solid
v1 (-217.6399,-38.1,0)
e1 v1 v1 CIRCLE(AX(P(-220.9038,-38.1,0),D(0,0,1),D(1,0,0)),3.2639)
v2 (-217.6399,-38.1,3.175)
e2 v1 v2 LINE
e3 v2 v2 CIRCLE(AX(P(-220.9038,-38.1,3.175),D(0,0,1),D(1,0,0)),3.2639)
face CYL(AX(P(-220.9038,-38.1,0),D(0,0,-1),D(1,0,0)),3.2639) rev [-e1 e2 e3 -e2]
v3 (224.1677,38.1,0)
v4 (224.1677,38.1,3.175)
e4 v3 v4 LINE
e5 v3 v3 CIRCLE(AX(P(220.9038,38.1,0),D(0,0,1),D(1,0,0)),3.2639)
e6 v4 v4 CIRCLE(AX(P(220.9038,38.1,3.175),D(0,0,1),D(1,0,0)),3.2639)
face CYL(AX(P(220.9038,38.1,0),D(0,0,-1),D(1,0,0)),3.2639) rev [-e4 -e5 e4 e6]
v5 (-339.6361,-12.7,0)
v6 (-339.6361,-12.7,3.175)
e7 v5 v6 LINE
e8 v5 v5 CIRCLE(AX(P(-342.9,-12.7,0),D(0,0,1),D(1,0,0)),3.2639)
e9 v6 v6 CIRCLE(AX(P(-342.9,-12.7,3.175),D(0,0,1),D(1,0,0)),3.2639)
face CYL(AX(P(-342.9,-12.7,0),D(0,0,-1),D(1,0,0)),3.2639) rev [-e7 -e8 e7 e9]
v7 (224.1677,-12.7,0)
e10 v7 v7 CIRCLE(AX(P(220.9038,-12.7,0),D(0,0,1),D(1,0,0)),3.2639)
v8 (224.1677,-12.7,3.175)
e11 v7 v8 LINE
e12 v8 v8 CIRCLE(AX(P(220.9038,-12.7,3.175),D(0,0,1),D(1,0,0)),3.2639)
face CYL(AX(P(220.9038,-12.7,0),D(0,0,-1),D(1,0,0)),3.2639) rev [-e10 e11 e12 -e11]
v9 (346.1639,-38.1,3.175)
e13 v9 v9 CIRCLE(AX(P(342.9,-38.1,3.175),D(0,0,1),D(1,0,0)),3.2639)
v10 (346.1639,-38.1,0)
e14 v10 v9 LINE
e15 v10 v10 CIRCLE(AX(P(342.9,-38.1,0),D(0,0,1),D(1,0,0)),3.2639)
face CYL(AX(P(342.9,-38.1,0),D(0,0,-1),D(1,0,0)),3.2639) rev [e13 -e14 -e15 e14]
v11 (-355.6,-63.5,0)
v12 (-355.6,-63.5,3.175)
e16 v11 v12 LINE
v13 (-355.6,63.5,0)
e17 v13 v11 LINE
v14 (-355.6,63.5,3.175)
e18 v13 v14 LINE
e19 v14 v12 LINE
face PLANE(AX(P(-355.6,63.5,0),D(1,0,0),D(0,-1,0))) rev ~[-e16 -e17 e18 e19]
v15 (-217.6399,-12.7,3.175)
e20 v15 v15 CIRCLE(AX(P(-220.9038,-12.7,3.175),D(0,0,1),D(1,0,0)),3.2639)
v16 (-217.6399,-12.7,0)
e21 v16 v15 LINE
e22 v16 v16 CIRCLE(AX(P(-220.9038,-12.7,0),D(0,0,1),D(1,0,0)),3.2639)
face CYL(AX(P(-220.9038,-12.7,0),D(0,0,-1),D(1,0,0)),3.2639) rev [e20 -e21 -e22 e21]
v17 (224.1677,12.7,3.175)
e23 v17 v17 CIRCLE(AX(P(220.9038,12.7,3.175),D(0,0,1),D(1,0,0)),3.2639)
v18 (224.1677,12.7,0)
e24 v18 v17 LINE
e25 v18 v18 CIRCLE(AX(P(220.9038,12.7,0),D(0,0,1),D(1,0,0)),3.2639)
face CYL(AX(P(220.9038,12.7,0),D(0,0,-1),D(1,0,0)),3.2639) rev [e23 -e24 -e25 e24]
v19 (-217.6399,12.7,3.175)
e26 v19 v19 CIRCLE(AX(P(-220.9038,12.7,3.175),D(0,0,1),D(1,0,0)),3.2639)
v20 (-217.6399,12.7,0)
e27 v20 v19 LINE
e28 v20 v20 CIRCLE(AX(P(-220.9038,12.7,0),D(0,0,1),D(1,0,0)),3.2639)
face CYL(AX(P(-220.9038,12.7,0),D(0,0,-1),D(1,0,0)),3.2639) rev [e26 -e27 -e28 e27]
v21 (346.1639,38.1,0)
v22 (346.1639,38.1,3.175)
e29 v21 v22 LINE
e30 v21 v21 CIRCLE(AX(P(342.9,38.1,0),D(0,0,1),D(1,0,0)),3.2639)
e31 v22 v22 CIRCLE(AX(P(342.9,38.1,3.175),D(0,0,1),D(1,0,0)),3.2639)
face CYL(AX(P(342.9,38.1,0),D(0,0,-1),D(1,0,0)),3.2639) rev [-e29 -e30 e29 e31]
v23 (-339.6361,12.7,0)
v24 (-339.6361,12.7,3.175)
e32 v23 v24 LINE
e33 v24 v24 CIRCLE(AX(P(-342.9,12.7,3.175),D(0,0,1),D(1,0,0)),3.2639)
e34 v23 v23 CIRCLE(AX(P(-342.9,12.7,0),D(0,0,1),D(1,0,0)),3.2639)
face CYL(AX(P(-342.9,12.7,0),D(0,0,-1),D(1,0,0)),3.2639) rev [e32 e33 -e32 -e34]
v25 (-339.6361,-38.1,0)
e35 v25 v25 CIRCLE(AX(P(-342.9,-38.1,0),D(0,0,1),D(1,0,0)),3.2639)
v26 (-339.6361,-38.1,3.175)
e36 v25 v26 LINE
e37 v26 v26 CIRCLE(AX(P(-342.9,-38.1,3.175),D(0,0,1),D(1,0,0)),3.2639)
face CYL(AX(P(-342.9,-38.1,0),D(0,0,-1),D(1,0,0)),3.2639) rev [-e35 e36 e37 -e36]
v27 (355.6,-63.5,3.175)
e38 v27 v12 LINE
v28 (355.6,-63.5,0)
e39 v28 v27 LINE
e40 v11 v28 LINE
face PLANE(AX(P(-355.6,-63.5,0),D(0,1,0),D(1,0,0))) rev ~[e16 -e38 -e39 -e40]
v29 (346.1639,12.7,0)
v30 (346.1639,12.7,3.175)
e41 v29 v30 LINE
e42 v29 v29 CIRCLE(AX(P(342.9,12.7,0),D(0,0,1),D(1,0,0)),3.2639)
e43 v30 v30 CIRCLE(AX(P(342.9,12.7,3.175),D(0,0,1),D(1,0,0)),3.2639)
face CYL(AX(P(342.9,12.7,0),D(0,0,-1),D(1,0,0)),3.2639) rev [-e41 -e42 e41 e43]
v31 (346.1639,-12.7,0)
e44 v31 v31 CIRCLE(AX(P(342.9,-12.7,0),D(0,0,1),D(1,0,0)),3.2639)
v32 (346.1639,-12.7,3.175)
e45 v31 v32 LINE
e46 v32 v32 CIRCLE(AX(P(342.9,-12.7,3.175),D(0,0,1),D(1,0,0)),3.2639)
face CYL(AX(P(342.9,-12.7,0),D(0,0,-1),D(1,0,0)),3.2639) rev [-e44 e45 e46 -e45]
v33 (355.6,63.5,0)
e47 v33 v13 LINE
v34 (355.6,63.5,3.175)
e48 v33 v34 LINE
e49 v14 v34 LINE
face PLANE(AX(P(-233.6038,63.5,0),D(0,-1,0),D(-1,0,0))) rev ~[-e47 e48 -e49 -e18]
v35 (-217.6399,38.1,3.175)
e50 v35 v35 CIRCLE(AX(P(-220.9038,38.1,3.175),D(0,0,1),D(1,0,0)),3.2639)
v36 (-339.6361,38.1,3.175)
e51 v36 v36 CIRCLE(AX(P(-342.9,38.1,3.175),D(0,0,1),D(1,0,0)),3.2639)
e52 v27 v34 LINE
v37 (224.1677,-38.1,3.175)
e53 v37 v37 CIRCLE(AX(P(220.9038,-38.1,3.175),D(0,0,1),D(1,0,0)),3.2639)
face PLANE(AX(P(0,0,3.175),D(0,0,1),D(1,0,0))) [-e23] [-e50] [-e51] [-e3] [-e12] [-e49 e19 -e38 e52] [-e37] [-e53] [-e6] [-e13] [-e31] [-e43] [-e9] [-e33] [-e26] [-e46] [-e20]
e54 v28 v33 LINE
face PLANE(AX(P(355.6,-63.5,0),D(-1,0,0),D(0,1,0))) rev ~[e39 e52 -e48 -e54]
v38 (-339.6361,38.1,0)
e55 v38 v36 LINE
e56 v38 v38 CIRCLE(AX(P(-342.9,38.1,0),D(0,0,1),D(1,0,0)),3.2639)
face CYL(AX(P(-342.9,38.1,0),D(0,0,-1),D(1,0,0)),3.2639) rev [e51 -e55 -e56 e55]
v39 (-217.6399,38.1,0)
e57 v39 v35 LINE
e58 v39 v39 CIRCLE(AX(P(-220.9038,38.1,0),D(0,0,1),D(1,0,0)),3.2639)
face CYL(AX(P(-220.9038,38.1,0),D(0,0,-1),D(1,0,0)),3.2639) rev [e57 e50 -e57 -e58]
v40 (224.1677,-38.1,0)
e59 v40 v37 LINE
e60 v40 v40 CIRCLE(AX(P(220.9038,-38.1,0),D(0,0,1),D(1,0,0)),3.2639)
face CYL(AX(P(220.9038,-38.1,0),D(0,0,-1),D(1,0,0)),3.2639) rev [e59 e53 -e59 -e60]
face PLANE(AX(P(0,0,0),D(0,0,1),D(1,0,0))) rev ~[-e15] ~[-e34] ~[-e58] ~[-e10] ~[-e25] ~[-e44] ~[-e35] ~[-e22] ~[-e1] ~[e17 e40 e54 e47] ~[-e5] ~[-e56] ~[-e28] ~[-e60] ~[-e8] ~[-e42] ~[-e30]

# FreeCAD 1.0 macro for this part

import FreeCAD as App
import Part
import Sketcher
from FreeCAD import Vector
Q = App.Units.Quantity

doc = App.newDocument("Part")
body = doc.addObject("PartDesign::Body", "Body")

sketch1 = body.newObject("Sketcher::SketchObject", "Sketch")
sketch1.AttachmentSupport = (doc.getObject("XY_Plane"), [""])
sketch1.MapMode = "FlatFace"
sketch1.addGeometry([
    Part.LineSegment(Vector(-355.6, 63.5, 0), Vector(-355.6, -63.5, 0)),
    Part.LineSegment(Vector(-355.6, -63.5, 0), Vector(355.6, -63.5, 0)),
    Part.LineSegment(Vector(355.6, -63.5, 0), Vector(355.6, 63.5, 0)),
    Part.LineSegment(Vector(355.6, 63.5, 0), Vector(-355.6, 63.5, 0)),
    Part.Circle(Vector(-342.9, -38.1, 0), Vector(0, 0, 1), 3.2639),
    Part.Circle(Vector(-342.9, -12.7, 0), Vector(0, 0, 1), 3.2639),
    Part.Circle(Vector(-342.9, 12.7, 0), Vector(0, 0, 1), 3.2639),
    Part.Circle(Vector(-342.9, 38.1, 0), Vector(0, 0, 1), 3.2639),
    Part.Circle(Vector(342.9, 38.1, 0), Vector(0, 0, 1), 3.2639),
    Part.Circle(Vector(-220.9038, -38.1, 0), Vector(0, 0, 1), 3.2639),
    Part.Circle(Vector(-220.9038, -12.7, 0), Vector(0, 0, 1), 3.2639),
    Part.Circle(Vector(220.9038, -38.1, 0), Vector(0, 0, 1), 3.2639),
    Part.Circle(Vector(342.9, -38.1, 0), Vector(0, 0, 1), 3.2639),
    Part.Circle(Vector(220.9038, -12.7, 0), Vector(0, 0, 1), 3.2639),
    Part.Circle(Vector(342.9, -12.7, 0), Vector(0, 0, 1), 3.2639),
    Part.Circle(Vector(-220.9038, 12.7, 0), Vector(0, 0, 1), 3.2639),
    Part.Circle(Vector(-220.9038, 38.1, 0), Vector(0, 0, 1), 3.2639),
    Part.Circle(Vector(220.9038, 12.7, 0), Vector(0, 0, 1), 3.2639),
    Part.Circle(Vector(342.9, 12.7, 0), Vector(0, 0, 1), 3.2639),
    Part.Circle(Vector(220.9038, 38.1, 0), Vector(0, 0, 1), 3.2639),
], False)
sketch1.addConstraint([
    Sketcher.Constraint("Coincident", 0, 2, 1, 1),
    Sketcher.Constraint("Coincident", 1, 2, 2, 1),
    Sketcher.Constraint("Coincident", 2, 2, 3, 1),
    Sketcher.Constraint("Coincident", 3, 2, 0, 1),
    Sketcher.Constraint("Vertical", 0),
    Sketcher.Constraint("Horizontal", 1),
    Sketcher.Constraint("Vertical", 2),
    Sketcher.Constraint("Horizontal", 3),
    Sketcher.Constraint("Equal", 4, 5),
    Sketcher.Constraint("Equal", 5, 6),
    Sketcher.Constraint("Equal", 6, 7),
    Sketcher.Constraint("Equal", 7, 8),
    Sketcher.Constraint("Equal", 8, 9),
    Sketcher.Constraint("Equal", 9, 10),
    Sketcher.Constraint("Equal", 10, 11),
    Sketcher.Constraint("Equal", 11, 12),
    Sketcher.Constraint("Equal", 12, 13),
    Sketcher.Constraint("Equal", 13, 14),
    Sketcher.Constraint("Equal", 14, 15),
    Sketcher.Constraint("Equal", 15, 16),
    Sketcher.Constraint("Equal", 16, 17),
    Sketcher.Constraint("Equal", 17, 18),
    Sketcher.Constraint("Equal", 18, 19),
    Sketcher.Constraint("Symmetric", 4, 3, 8, 3, -1, 1),
    Sketcher.Constraint("Symmetric", 7, 3, 12, 3, -1, 1),
    Sketcher.Constraint("Symmetric", 6, 3, 14, 3, -1, 1),
    Sketcher.Constraint("Symmetric", 13, 3, 15, 3, -1, 1),
    Sketcher.Constraint("Symmetric", 11, 3, 16, 3, -1, 1),
    Sketcher.Constraint("Symmetric", 10, 3, 17, 3, -1, 1),
    Sketcher.Constraint("Symmetric", 5, 3, 18, 3, -1, 1),
    Sketcher.Constraint("Symmetric", 9, 3, 19, 3, -1, 1),
    Sketcher.Constraint("Symmetric", 0, 2, 2, 2, -1, 1),
    Sketcher.Constraint("Symmetric", 7, 3, 8, 3, -2),
    Sketcher.Constraint("Symmetric", 9, 3, 11, 3, -2),
    Sketcher.Constraint("Symmetric", 10, 3, 13, 3, -2),
    Sketcher.Constraint("Symmetric", 5, 3, 14, 3, -2),
    Sketcher.Constraint("Horizontal", 4, 3, 9, 3),
    Sketcher.Constraint("Horizontal", 5, 3, 10, 3),
    Sketcher.Constraint("Vertical", 4, 3, 5, 3),
    Sketcher.Constraint("Vertical", 9, 3, 10, 3),
    Sketcher.Constraint("DistanceX", 1, 1, 1, 2, Q("28 in")),
    Sketcher.Constraint("DistanceY", 0, 2, 0, 1, Q("5 in")),
    Sketcher.Constraint("Diameter", 4, Q("0.257 in")),
    Sketcher.Constraint("DistanceY", 4, 3, 5, 3, Q("1 in")),
    Sketcher.Constraint("DistanceY", 5, 3, 6, 3, Q("1 in")),
    Sketcher.Constraint("DistanceX", 0, 2, 4, 3, Q("0.5 in")),
    Sketcher.Constraint("DistanceX", 4, 3, 9, 3, Q("4.803 in")),
])
pad1 = body.newObject("PartDesign::Pad", "Pad")
pad1.Profile = sketch1
pad1.Length = Q("0.125 in")

doc.recompute()
